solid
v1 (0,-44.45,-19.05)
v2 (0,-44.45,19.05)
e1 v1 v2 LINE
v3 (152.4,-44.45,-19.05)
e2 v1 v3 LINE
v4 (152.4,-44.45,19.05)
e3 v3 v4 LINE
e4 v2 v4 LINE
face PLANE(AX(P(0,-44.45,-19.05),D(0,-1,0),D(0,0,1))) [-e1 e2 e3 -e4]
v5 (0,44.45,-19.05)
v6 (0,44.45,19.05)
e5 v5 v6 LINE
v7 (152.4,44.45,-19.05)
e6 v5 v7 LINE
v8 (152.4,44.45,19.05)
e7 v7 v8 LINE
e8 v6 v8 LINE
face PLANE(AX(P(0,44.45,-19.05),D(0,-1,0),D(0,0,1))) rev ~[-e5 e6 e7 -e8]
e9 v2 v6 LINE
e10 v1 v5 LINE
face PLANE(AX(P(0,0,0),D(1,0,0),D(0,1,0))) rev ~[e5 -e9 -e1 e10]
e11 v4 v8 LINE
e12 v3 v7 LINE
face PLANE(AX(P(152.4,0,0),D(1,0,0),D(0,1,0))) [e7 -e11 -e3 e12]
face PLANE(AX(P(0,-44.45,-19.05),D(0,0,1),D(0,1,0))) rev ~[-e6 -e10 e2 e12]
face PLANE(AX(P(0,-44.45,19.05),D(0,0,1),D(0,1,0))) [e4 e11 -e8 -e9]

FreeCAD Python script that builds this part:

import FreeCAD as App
import Part
import Sketcher
from FreeCAD import Vector
Q = App.Units.Quantity


def add_polygon(sketch, points):
    """Adds a closed chain of lines whose ends are joined by coincident constraints."""
    first, n = sketch.GeometryCount, len(points)
    for a, b in zip(points, points[1:] + points[:1]):
        sketch.addGeometry(Part.LineSegment(App.Vector(*a, 0), App.Vector(*b, 0)), False)
    for i in range(n):
        sketch.addConstraint(Sketcher.Constraint("Coincident", first + i, 2, first + (i + 1) % n, 1))

doc = App.newDocument("Part")
body = doc.addObject("PartDesign::Body", "Body")

sketch1 = body.newObject("Sketcher::SketchObject", "Sketch")
sketch1.AttachmentSupport = (doc.getObject("YZ_Plane"), [""])
sketch1.MapMode = "FlatFace"
add_polygon(sketch1, [(-44.45, 19.05), (-44.45, -19.05), (44.45, -19.05), (44.45, 19.05)])
sketch1.addConstraint(Sketcher.Constraint("Vertical", 0))
sketch1.addConstraint(Sketcher.Constraint("Horizontal", 1))
sketch1.addConstraint(Sketcher.Constraint("Vertical", 2))
sketch1.addConstraint(Sketcher.Constraint("Horizontal", 3))
sketch1.addConstraint(Sketcher.Constraint("Symmetric", 0, 2, 2, 2, -1, 1))
sketch1.addConstraint(Sketcher.Constraint("DistanceX", 1, 1, 1, 2, Q("3.5 in")))
sketch1.addConstraint(Sketcher.Constraint("DistanceY", 0, 2, 0, 1, Q("1.5 in")))
pad1 = body.newObject("PartDesign::Pad", "Pad")
pad1.Profile = sketch1
pad1.Length = Q("6 in")

doc.recompute()
